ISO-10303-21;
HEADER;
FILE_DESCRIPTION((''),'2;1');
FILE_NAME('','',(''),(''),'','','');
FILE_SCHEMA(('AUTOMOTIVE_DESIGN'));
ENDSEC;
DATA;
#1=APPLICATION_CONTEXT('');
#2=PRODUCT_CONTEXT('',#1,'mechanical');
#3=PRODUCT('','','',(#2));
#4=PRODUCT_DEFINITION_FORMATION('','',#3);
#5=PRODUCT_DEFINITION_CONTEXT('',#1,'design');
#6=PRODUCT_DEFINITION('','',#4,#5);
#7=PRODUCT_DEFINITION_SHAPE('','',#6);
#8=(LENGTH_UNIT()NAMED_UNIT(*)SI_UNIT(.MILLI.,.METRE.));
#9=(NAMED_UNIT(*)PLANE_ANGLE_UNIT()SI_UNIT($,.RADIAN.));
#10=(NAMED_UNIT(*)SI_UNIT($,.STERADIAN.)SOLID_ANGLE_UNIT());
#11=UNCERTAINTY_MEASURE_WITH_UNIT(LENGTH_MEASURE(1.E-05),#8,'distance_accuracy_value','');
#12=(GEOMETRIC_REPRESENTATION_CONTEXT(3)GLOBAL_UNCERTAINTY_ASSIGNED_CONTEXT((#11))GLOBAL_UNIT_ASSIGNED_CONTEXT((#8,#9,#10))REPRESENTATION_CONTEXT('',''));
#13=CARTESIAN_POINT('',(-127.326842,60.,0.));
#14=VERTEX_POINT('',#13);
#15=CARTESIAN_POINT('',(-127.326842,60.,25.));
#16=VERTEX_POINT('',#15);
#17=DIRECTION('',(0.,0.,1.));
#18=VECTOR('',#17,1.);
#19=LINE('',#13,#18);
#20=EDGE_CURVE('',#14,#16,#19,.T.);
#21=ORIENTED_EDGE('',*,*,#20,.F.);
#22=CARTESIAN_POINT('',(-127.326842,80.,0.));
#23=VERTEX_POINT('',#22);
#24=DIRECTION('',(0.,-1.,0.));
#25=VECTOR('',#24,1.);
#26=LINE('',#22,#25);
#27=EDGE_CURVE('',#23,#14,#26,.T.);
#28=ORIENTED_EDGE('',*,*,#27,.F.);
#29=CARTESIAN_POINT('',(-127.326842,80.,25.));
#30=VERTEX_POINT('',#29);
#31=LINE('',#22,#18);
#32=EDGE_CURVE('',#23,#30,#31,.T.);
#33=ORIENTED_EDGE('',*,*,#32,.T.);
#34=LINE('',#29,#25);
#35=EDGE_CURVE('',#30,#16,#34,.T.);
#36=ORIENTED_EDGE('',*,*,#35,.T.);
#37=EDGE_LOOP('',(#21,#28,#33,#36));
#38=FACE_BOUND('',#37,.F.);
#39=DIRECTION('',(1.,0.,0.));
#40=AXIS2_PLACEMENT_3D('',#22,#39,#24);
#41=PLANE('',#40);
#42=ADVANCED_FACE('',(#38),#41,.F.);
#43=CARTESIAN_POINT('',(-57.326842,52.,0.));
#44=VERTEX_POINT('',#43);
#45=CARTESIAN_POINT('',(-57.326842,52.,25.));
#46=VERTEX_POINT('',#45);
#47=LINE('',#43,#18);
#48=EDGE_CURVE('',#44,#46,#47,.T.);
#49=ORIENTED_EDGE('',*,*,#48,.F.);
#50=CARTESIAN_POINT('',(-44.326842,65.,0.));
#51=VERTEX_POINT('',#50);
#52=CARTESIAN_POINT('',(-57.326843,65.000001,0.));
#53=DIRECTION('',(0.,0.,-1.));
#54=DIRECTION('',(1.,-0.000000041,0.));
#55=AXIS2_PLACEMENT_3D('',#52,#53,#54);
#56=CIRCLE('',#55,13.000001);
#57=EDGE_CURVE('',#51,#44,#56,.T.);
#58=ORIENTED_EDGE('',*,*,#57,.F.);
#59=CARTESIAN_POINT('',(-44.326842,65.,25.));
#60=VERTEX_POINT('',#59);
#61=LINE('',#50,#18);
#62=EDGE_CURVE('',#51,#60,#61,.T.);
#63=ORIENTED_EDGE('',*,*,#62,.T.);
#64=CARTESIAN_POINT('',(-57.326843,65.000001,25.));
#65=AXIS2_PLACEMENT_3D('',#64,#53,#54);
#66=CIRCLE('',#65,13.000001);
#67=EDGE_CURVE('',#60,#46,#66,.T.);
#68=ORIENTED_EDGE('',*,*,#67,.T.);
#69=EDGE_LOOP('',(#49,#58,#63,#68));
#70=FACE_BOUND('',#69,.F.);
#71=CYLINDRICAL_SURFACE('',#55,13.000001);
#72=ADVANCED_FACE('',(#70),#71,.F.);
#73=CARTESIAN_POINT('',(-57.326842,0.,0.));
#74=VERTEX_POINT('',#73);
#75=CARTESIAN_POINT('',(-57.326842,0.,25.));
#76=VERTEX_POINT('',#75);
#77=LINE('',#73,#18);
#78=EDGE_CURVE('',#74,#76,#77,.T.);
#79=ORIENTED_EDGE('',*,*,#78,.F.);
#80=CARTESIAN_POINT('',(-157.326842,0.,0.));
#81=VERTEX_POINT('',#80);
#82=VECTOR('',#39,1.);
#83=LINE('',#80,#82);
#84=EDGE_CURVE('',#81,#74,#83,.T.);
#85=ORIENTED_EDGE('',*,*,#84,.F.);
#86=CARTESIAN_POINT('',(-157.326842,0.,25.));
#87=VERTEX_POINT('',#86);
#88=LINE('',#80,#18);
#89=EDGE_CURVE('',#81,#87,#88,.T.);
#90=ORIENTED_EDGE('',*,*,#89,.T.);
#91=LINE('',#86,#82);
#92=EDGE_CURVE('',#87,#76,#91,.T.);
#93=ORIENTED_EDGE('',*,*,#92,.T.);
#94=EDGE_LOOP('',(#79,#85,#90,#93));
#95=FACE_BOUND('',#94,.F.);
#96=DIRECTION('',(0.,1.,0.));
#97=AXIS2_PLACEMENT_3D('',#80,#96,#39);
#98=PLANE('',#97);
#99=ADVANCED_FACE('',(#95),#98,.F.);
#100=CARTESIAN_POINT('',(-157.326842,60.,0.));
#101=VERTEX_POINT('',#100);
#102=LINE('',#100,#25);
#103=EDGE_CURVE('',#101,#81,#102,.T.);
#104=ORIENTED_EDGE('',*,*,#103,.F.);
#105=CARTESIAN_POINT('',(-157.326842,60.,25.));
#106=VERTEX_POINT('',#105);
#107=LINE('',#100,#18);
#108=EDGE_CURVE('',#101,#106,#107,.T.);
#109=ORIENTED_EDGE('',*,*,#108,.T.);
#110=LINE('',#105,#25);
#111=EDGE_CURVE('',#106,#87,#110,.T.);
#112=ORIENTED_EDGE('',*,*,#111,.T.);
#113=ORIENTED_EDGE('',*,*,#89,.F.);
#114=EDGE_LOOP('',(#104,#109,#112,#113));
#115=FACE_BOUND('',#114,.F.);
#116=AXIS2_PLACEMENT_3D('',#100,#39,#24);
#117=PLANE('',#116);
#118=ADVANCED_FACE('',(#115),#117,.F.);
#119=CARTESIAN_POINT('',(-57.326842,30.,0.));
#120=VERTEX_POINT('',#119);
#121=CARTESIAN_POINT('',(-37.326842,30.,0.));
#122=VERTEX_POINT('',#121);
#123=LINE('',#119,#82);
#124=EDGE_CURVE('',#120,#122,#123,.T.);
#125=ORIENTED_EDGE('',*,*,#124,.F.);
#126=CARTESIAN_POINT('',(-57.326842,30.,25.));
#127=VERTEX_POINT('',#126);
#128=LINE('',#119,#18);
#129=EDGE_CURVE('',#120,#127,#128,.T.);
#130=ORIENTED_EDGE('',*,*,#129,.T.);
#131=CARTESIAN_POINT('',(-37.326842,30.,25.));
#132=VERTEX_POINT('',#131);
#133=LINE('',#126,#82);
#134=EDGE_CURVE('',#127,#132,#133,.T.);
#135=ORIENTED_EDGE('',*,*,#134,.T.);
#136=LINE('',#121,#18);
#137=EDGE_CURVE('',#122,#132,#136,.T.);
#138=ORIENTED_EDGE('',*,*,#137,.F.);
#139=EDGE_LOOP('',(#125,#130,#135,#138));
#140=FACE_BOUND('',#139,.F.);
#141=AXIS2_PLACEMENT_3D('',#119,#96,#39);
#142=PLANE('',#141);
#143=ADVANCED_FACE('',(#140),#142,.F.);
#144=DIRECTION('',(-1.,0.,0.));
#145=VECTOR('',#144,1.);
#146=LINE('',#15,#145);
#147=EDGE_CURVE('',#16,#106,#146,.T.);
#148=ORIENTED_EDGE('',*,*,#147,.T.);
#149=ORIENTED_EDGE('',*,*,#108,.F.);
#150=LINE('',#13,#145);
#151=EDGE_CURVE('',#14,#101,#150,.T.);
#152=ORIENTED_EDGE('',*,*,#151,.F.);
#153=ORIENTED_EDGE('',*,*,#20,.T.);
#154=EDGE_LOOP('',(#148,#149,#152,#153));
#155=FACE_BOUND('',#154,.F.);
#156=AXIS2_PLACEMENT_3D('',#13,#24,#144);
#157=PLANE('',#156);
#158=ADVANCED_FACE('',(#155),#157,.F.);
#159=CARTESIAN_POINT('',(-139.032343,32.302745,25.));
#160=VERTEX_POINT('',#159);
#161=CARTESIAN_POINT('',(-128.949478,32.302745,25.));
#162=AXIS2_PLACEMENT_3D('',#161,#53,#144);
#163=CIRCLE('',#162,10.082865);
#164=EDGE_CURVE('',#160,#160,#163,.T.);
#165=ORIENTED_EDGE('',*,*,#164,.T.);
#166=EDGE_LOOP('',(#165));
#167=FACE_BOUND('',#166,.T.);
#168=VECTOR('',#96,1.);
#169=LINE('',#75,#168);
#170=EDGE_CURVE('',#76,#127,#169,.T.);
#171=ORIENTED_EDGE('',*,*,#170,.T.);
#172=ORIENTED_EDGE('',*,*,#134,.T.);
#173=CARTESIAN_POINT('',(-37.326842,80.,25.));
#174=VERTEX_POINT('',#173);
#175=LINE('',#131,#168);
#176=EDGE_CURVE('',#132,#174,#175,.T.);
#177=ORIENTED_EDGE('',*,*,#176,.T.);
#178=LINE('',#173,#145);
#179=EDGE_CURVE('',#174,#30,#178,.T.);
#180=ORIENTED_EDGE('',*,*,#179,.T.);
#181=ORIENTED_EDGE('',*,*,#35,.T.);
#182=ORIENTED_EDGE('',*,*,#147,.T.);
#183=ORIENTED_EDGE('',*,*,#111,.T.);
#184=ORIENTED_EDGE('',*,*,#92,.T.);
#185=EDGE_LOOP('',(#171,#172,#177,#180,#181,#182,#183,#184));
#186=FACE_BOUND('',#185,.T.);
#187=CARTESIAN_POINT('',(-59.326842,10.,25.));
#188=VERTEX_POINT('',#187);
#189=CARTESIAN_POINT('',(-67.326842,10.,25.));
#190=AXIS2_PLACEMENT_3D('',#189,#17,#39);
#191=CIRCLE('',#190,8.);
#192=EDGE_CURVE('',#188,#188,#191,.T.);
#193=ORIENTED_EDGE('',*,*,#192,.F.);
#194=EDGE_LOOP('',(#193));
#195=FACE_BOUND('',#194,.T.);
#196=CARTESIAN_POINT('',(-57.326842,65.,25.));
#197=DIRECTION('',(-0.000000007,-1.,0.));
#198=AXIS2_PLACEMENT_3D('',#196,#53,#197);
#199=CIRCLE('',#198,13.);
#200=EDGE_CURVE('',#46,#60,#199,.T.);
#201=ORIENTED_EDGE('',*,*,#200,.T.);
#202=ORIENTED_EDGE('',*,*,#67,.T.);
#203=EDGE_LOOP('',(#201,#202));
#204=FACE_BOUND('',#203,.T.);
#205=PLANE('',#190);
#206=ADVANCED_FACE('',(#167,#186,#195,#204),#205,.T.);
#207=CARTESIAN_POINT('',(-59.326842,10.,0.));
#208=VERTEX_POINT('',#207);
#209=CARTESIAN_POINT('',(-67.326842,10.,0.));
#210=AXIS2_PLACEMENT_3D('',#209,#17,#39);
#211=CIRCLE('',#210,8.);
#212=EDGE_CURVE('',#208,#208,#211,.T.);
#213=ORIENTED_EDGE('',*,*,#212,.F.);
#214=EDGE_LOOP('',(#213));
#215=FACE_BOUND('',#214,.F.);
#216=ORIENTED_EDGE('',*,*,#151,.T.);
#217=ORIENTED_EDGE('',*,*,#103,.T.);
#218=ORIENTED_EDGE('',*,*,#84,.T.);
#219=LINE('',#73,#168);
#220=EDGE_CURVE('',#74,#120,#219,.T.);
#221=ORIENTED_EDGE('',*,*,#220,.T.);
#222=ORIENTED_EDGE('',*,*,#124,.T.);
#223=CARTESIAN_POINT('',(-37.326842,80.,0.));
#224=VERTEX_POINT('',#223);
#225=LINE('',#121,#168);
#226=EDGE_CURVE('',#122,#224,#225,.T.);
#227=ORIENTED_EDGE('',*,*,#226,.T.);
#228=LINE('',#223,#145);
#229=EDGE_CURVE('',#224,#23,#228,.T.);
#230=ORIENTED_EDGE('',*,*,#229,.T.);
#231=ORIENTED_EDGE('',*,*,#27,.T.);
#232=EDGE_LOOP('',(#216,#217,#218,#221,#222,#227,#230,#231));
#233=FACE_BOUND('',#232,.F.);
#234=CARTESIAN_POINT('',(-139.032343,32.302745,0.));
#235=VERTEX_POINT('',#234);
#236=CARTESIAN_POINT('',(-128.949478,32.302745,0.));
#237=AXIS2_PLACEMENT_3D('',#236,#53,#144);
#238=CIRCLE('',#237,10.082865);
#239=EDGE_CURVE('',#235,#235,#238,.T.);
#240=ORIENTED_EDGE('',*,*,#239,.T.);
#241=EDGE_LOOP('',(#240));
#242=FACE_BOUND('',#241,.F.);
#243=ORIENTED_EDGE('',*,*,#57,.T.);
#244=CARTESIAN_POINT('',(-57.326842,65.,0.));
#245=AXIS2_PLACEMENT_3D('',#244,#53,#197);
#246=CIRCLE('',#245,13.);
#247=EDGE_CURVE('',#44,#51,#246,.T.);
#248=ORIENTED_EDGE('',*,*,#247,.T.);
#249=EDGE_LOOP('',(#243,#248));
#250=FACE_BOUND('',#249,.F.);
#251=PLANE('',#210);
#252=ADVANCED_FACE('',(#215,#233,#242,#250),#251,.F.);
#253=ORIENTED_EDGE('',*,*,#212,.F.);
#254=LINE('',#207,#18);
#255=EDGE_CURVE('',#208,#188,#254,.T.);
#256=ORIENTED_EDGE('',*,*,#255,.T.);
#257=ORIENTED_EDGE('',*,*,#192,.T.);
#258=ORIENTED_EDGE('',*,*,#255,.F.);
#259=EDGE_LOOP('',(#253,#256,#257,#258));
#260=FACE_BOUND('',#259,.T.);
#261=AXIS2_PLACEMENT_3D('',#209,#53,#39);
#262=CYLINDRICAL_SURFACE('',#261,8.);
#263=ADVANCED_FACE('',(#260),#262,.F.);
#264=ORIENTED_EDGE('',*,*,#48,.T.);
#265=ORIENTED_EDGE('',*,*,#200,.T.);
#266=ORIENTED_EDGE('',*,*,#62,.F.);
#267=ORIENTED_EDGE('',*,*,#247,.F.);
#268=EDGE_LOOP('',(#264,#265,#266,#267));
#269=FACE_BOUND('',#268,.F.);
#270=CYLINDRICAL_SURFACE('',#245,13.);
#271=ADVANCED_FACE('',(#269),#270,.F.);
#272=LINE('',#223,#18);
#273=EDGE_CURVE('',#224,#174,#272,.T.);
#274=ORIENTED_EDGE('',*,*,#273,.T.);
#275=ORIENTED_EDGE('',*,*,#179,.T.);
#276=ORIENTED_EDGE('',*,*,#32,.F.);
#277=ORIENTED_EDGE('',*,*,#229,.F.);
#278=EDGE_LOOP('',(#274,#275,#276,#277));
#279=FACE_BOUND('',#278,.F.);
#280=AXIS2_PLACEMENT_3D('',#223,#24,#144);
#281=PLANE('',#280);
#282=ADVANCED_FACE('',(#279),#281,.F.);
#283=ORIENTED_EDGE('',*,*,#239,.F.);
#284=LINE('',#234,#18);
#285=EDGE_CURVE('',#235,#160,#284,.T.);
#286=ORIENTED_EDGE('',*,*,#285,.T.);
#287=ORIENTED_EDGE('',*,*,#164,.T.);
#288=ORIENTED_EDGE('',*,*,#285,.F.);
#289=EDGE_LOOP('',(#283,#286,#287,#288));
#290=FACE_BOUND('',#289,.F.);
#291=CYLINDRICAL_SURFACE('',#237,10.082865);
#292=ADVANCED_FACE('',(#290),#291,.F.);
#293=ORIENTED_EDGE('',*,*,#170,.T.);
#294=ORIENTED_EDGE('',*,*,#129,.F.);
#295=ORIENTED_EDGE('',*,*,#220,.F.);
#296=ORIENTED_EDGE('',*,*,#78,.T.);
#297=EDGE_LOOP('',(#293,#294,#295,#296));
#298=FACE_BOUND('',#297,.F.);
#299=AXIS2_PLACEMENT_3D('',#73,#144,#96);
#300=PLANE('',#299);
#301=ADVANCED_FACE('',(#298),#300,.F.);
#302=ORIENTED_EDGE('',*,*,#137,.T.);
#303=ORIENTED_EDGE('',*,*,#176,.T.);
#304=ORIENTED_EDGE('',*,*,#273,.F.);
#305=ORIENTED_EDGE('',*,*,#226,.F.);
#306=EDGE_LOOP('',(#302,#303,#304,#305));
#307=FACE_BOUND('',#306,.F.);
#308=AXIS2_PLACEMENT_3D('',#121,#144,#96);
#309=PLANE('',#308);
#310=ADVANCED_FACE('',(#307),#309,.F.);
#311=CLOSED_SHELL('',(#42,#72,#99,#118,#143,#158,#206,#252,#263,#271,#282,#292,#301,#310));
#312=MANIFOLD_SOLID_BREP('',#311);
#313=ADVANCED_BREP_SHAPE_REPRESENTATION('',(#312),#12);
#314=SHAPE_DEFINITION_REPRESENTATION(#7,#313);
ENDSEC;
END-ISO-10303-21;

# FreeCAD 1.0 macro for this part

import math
import FreeCAD as App
import Part
import Sketcher

V = App.Vector
Q = App.Units.Quantity

doc = App.newDocument("Part")
body = doc.addObject("PartDesign::Body", "Body")

# Sketch on XY plane
sketch1 = body.newObject("Sketcher::SketchObject", "Sketch")
sketch1.AttachmentSupport = (doc.getObject("XY_Plane"), [""])
sketch1.MapMode = "FlatFace"
sketch1.addGeometry([
    Part.LineSegment(V(-157.326842, 0, 0), V(-57.326842, 0, 0)),  # 0
    Part.LineSegment(V(-57.326842, 0, 0), V(-57.326842, 30, 0)),  # 1
    Part.LineSegment(V(-57.326842, 30, 0), V(-37.326842, 30, 0)),  # 2
    Part.LineSegment(V(-37.326842, 30, 0), V(-37.326842, 80, 0)),  # 3
    Part.LineSegment(V(-37.326842, 80, 0), V(-127.326842, 80, 0)),  # 4
    Part.LineSegment(V(-127.326842, 80, 0), V(-127.326842, 60, 0)),  # 5
    Part.LineSegment(V(-127.326842, 60, 0), V(-157.326842, 60, 0)),  # 6
    Part.LineSegment(V(-157.326842, 60, 0), V(-157.326842, 0, 0)),  # 7
    Part.Circle(V(-128.949478, 32.302745, 0), V(0, 0, 1), 10.082865),  # 8
    Part.Circle(V(-67.326842, 10, 0), V(0, 0, 1), 8),  # 9
    Part.ArcOfCircle(Part.Circle(V(-57.326842, 65, 0), V(0, 0, 1), 13), math.radians(0), math.radians(270)),  # 10
    Part.ArcOfCircle(Part.Circle(V(-57.326843, 65.000001, 0), V(0, 0, 1), 13.000001), math.radians(-89.999998), math.radians(-0.000002)),  # 11
], False)
sketch1.addConstraint([
    Sketcher.Constraint("Coincident", 0, 2, 1, 1),
    Sketcher.Constraint("Coincident", 1, 2, 2, 1),
    Sketcher.Constraint("Coincident", 2, 2, 3, 1),
    Sketcher.Constraint("Coincident", 3, 2, 4, 1),
    Sketcher.Constraint("Coincident", 4, 2, 5, 1),
    Sketcher.Constraint("Coincident", 5, 2, 6, 1),
    Sketcher.Constraint("Coincident", 6, 2, 7, 1),
    Sketcher.Constraint("Coincident", 7, 2, 0, 1),
    Sketcher.Constraint("Tangent", 10, 1, 11, 2),
    Sketcher.Constraint("Coincident", 11, 1, 10, 2),
    Sketcher.Constraint("Horizontal", 0),
    Sketcher.Constraint("Vertical", 1),
    Sketcher.Constraint("Horizontal", 2),
    Sketcher.Constraint("Vertical", 3),
    Sketcher.Constraint("Horizontal", 4),
    Sketcher.Constraint("Vertical", 5),
    Sketcher.Constraint("Horizontal", 6),
    Sketcher.Constraint("Vertical", 7),
    Sketcher.Constraint("PointOnObject", 0, 2, -1),
    Sketcher.Constraint("Horizontal", 11, 3, 10, 1),
    Sketcher.Constraint("Vertical", 11, 3, 0, 2),
    Sketcher.Constraint("Vertical", 1, 2, 11, 1),
    Sketcher.Constraint("Equal", 6, 1),
    Sketcher.Constraint("Equal", 2, 5),
    Sketcher.Constraint("Diameter", 9, Q("16 mm")),
    Sketcher.Constraint("Radius", 10, Q("13 mm")),
    Sketcher.Constraint("DistanceX", 0, 1, 0, 2, Q("100 mm")),
    Sketcher.Constraint("DistanceX", 2, 1, 2, 2, Q("20 mm")),
    Sketcher.Constraint("DistanceX", 4, 2, 4, 1, Q("90 mm")),
    Sketcher.Constraint("DistanceY", 3, 1, 3, 2, Q("50 mm")),
    Sketcher.Constraint("DistanceY", -1, 1, 9, 3, Q("10 mm")),
    Sketcher.Constraint("DistanceY", -1, 1, 10, 3, Q("65 mm")),
    Sketcher.Constraint("DistanceX", 9, 3, 10, 3, Q("10 mm")),
    Sketcher.Constraint("Diameter", 8, Q("20.16573 mm")),
    Sketcher.Constraint("DistanceX", 8, 3, -1, 1, Q("128.949478 mm")),
    Sketcher.Constraint("DistanceX", 9, 3, -1, 1, Q("67.326842 mm")),
    Sketcher.Constraint("DistanceY", -1, 1, 8, 3, Q("32.302745 mm")),
])
pad1 = body.newObject("PartDesign::Pad", "Pad")
pad1.Profile = sketch1
pad1.Length = 25

doc.recompute()
